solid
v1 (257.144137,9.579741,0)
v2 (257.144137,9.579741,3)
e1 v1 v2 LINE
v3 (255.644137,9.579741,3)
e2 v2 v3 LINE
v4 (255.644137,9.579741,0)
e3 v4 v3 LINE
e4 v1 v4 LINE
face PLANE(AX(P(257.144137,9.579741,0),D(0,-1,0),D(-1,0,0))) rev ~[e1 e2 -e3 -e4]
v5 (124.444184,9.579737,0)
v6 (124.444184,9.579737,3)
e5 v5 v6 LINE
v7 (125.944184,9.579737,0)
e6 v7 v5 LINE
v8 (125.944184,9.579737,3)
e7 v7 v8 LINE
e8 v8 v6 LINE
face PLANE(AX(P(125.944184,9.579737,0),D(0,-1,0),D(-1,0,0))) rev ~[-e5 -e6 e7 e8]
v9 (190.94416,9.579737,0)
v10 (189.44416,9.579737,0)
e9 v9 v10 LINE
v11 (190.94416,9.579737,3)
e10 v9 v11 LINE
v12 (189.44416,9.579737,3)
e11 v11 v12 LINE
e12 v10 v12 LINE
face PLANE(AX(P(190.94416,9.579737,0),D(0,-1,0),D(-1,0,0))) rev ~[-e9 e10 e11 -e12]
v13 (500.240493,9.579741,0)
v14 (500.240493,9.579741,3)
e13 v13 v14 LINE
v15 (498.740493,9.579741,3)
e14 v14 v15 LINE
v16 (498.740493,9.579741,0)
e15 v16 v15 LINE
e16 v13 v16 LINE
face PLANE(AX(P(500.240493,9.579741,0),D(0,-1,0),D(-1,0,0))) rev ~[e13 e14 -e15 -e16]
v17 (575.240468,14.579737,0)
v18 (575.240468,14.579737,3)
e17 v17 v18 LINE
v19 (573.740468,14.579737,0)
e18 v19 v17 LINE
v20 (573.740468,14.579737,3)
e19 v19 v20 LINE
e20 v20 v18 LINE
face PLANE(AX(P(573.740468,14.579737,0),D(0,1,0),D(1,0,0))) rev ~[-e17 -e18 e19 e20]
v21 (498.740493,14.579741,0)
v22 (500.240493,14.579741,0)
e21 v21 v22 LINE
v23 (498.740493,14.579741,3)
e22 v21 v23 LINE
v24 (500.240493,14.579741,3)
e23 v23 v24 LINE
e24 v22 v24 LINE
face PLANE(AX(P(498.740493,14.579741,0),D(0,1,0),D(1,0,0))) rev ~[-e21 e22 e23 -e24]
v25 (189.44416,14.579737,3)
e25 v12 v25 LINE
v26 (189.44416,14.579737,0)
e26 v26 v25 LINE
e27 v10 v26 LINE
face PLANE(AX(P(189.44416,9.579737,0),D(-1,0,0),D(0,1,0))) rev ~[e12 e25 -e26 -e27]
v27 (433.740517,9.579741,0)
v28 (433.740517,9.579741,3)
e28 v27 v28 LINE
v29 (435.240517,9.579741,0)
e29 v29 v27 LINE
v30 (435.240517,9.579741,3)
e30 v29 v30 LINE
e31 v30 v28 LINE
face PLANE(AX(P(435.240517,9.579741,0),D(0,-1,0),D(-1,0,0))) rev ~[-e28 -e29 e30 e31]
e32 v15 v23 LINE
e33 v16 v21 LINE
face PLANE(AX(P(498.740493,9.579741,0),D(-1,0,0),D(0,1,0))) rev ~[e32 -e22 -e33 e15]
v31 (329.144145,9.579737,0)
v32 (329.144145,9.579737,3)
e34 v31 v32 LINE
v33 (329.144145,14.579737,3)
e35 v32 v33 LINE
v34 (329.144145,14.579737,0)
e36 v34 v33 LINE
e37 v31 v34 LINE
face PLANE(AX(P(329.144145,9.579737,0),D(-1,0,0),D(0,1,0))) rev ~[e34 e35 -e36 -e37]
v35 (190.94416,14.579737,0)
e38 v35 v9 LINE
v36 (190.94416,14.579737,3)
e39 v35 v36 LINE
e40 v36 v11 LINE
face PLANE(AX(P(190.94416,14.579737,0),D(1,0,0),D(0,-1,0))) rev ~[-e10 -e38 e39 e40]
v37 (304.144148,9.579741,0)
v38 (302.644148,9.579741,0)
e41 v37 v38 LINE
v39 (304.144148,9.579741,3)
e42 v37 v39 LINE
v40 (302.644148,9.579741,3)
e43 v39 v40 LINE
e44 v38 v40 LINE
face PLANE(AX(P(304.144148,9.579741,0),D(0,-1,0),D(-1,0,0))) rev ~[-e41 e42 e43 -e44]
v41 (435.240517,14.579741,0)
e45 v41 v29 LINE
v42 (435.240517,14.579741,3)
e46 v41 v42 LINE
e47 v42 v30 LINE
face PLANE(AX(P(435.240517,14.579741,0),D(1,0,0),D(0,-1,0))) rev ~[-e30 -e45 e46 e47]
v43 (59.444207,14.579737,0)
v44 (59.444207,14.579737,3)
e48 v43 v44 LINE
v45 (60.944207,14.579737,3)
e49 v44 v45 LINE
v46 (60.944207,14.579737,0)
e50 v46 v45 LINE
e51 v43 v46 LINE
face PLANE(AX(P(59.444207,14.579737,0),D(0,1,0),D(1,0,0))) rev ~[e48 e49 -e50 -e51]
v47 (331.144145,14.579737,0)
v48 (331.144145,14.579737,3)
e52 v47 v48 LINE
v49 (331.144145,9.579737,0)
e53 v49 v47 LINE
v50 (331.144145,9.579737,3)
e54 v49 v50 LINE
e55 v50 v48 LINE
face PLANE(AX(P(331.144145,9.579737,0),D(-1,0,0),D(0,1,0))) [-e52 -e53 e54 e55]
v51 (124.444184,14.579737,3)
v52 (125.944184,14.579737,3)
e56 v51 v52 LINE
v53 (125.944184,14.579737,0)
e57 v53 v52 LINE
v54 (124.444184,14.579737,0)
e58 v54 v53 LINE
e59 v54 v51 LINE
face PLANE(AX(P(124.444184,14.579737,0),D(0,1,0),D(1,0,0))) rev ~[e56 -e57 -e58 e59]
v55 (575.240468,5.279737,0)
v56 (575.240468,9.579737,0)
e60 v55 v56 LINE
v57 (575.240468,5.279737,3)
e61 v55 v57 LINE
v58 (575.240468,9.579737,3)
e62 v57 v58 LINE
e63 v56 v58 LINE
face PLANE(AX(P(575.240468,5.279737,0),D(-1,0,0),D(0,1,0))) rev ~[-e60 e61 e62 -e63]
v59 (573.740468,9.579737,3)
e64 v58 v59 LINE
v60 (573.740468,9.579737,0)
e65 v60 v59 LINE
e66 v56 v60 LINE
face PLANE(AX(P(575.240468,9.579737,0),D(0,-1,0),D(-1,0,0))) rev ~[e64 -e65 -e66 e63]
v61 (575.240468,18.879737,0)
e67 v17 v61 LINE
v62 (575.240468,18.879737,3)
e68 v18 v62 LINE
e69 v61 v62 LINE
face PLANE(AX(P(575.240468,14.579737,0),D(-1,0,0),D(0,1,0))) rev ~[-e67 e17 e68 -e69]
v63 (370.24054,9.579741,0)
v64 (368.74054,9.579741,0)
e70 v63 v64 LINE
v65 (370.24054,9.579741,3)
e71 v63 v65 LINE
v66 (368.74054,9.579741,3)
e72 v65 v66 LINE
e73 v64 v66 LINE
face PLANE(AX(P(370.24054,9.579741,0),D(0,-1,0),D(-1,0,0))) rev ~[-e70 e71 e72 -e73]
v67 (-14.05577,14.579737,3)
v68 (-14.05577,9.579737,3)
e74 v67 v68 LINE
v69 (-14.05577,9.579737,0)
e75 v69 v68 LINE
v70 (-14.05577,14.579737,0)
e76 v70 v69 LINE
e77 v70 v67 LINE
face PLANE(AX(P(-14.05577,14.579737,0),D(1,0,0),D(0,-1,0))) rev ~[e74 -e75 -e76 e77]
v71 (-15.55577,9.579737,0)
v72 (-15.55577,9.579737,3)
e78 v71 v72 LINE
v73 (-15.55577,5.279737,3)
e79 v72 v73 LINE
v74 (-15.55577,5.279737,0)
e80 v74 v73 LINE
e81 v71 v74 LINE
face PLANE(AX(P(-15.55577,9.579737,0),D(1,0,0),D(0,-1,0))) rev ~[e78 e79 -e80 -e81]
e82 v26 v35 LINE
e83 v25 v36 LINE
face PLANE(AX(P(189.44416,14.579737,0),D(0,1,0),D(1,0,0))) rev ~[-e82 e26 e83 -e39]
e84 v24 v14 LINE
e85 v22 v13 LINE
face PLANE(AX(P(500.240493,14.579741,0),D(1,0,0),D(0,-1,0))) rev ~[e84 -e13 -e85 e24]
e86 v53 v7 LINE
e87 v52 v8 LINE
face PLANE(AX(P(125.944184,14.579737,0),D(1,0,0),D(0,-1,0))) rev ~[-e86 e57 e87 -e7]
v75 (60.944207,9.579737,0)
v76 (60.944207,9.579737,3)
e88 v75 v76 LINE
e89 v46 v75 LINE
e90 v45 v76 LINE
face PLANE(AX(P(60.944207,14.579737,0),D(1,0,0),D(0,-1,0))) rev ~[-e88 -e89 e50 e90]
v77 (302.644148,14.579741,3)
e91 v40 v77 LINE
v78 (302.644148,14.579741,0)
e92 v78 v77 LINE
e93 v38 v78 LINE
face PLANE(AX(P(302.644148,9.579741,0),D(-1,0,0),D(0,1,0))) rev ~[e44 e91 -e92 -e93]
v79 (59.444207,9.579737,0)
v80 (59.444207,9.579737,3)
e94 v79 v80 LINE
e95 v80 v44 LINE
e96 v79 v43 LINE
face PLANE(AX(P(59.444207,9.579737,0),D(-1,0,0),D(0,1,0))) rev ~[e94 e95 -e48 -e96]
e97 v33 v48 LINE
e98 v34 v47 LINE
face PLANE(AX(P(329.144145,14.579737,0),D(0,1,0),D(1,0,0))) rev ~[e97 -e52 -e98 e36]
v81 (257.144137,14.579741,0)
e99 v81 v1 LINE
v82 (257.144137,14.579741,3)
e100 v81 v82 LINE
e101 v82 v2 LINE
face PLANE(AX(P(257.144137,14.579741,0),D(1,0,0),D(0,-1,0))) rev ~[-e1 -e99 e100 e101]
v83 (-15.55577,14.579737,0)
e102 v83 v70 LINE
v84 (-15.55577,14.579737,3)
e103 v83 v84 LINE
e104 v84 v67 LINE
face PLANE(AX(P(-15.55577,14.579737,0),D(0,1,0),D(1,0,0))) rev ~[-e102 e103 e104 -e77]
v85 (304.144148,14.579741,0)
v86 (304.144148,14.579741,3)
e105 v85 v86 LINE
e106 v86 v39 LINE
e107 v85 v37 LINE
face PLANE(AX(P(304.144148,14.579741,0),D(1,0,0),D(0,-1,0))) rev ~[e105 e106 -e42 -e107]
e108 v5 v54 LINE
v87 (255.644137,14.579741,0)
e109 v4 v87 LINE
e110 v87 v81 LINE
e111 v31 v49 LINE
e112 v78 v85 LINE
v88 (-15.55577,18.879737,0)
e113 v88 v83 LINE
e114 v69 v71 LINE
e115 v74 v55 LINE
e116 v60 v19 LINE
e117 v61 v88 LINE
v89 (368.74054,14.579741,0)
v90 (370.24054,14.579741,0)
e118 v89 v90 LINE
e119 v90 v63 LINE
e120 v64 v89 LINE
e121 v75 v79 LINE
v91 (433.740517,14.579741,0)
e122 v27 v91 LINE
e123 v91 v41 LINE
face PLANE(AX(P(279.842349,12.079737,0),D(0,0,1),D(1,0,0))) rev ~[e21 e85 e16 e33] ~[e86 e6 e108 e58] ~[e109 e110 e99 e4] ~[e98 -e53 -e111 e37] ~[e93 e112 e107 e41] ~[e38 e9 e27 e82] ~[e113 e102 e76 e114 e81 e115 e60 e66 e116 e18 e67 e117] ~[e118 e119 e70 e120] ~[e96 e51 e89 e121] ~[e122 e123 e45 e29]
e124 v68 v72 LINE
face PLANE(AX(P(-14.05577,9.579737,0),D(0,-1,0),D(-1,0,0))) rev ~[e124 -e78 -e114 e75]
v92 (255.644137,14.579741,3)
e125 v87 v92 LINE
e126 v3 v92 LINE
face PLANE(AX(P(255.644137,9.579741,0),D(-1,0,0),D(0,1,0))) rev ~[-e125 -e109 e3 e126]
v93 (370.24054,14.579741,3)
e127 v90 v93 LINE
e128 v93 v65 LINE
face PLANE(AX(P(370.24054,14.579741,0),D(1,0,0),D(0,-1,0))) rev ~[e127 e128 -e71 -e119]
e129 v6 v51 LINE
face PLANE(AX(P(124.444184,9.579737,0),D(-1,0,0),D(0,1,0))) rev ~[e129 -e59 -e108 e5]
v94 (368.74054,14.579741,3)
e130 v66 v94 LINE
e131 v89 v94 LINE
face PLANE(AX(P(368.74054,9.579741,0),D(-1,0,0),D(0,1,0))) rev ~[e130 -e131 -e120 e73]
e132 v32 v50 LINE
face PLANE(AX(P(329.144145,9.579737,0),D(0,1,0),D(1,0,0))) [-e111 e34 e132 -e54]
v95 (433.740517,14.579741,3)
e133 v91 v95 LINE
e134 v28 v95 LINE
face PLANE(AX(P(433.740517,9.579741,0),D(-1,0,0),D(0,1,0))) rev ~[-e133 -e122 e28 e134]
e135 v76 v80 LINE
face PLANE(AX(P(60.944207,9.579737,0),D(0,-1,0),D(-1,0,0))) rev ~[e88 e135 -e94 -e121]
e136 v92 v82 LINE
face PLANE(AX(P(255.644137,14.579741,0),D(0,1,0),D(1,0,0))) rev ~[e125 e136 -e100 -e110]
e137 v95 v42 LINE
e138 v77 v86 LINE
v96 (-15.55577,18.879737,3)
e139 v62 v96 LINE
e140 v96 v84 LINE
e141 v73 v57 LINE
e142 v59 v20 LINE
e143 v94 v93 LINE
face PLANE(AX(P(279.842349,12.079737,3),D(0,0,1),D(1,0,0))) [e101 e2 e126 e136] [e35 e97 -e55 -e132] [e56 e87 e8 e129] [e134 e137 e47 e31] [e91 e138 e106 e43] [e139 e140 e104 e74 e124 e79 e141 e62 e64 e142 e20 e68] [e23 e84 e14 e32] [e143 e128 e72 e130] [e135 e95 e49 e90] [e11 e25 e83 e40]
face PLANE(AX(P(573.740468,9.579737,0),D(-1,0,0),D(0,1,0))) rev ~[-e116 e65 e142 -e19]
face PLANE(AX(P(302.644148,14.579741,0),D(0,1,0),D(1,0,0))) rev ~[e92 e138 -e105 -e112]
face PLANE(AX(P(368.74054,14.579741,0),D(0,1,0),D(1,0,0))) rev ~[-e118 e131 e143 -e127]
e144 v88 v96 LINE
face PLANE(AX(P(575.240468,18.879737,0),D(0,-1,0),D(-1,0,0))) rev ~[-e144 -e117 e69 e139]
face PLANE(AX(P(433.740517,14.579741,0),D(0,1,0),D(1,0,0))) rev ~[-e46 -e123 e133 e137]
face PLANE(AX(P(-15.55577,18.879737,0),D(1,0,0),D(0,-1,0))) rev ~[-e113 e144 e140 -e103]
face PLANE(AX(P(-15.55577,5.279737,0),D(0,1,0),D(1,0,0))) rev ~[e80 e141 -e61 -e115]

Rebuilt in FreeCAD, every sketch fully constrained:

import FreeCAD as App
import Part
import Sketcher
from FreeCAD import Vector


def add_polygon(sketch, points):
    """Adds a closed chain of lines whose ends are joined by coincident constraints."""
    first, n = sketch.GeometryCount, len(points)
    for a, b in zip(points, points[1:] + points[:1]):
        sketch.addGeometry(Part.LineSegment(App.Vector(*a, 0), App.Vector(*b, 0)), False)
    for i in range(n):
        sketch.addConstraint(Sketcher.Constraint("Coincident", first + i, 2, first + (i + 1) % n, 1))

doc = App.newDocument("Part")
params = doc.addObject("Spreadsheet::Sheet", "Params")
for row, (alias, value) in enumerate([
    ("sketch1_width", "2 mm"),
    ("sketch1_height", "5 mm"),
    ("sketch1_width2", "1.5 mm"),
    ("sketch1_height2", "4.3 mm"),
    ("pad1_length", "3 mm"),
], start=1):
    params.set(f"A{row}", alias)
    params.set(f"B{row}", "=" + value)
    params.setAlias(f"B{row}", alias)

body = doc.addObject("PartDesign::Body", "Body")

# Sketch on XY plane
sketch1 = body.newObject("Sketcher::SketchObject", "Sketch")
sketch1.AttachmentSupport = (doc.getObject("XY_Plane"), [""])
sketch1.MapMode = "FlatFace"
add_polygon(sketch1, [(575.2, 18.9), (-15.6, 18.9), (-15.6, 14.6), (-14.1, 14.6), (-14.1, 9.6), (-15.6, 9.6), (-15.6, 5.3), (575.2, 5.3), (575.2, 9.6), (573.7, 9.6), (573.7, 14.6), (575.2, 14.6)])  # lines 0-11
add_polygon(sketch1, [(59.4, 9.6), (59.4, 14.6), (60.9, 14.6), (60.9, 9.6)])  # lines 12-15
add_polygon(sketch1, [(124.4, 9.6), (124.4, 14.6), (125.9, 14.6), (125.9, 9.6)])  # lines 16-19
add_polygon(sketch1, [(189.4, 9.6), (189.4, 14.6), (190.9, 14.6), (190.9, 9.6)])  # lines 20-23
add_polygon(sketch1, [(331.1, 9.6), (329.1, 9.6), (329.1, 14.6), (331.1, 14.6)])  # lines 24-27
add_polygon(sketch1, [(255.6, 9.6), (255.6, 14.6), (257.1, 14.6), (257.1, 9.6)])  # lines 28-31
add_polygon(sketch1, [(302.6, 9.6), (302.6, 14.6), (304.1, 14.6), (304.1, 9.6)])  # lines 32-35
add_polygon(sketch1, [(368.7, 9.6), (368.7, 14.6), (370.2, 14.6), (370.2, 9.6)])  # lines 36-39
add_polygon(sketch1, [(433.7, 9.6), (433.7, 14.6), (435.2, 14.6), (435.2, 9.6)])  # lines 40-43
add_polygon(sketch1, [(498.7, 9.6), (498.7, 14.6), (500.2, 14.6), (500.2, 9.6)])  # lines 44-47
sketch1.addConstraint(Sketcher.Constraint("Horizontal", 0))
sketch1.addConstraint(Sketcher.Constraint("Vertical", 1))
sketch1.addConstraint(Sketcher.Constraint("Horizontal", 2))
sketch1.addConstraint(Sketcher.Constraint("Vertical", 3))
sketch1.addConstraint(Sketcher.Constraint("Horizontal", 4))
sketch1.addConstraint(Sketcher.Constraint("Vertical", 5))
sketch1.addConstraint(Sketcher.Constraint("Horizontal", 6))
sketch1.addConstraint(Sketcher.Constraint("Vertical", 7))
sketch1.addConstraint(Sketcher.Constraint("Horizontal", 8))
sketch1.addConstraint(Sketcher.Constraint("Vertical", 9))
sketch1.addConstraint(Sketcher.Constraint("Horizontal", 10))
sketch1.addConstraint(Sketcher.Constraint("Vertical", 11))
sketch1.addConstraint(Sketcher.Constraint("Vertical", 12))
sketch1.addConstraint(Sketcher.Constraint("Horizontal", 13))
sketch1.addConstraint(Sketcher.Constraint("Vertical", 14))
sketch1.addConstraint(Sketcher.Constraint("Horizontal", 15))
sketch1.addConstraint(Sketcher.Constraint("Vertical", 16))
sketch1.addConstraint(Sketcher.Constraint("Horizontal", 17))
sketch1.addConstraint(Sketcher.Constraint("Vertical", 18))
sketch1.addConstraint(Sketcher.Constraint("Horizontal", 19))
sketch1.addConstraint(Sketcher.Constraint("Vertical", 20))
sketch1.addConstraint(Sketcher.Constraint("Horizontal", 21))
sketch1.addConstraint(Sketcher.Constraint("Vertical", 22))
sketch1.addConstraint(Sketcher.Constraint("Horizontal", 23))
sketch1.addConstraint(Sketcher.Constraint("Horizontal", 24))
sketch1.addConstraint(Sketcher.Constraint("Vertical", 25))
sketch1.addConstraint(Sketcher.Constraint("Horizontal", 26))
sketch1.addConstraint(Sketcher.Constraint("Vertical", 27))
sketch1.addConstraint(Sketcher.Constraint("Vertical", 28))
sketch1.addConstraint(Sketcher.Constraint("Horizontal", 29))
sketch1.addConstraint(Sketcher.Constraint("Vertical", 30))
sketch1.addConstraint(Sketcher.Constraint("Horizontal", 31))
sketch1.addConstraint(Sketcher.Constraint("Vertical", 32))
sketch1.addConstraint(Sketcher.Constraint("Horizontal", 33))
sketch1.addConstraint(Sketcher.Constraint("Vertical", 34))
sketch1.addConstraint(Sketcher.Constraint("Horizontal", 35))
sketch1.addConstraint(Sketcher.Constraint("Vertical", 36))
sketch1.addConstraint(Sketcher.Constraint("Horizontal", 37))
sketch1.addConstraint(Sketcher.Constraint("Vertical", 38))
sketch1.addConstraint(Sketcher.Constraint("Horizontal", 39))
sketch1.addConstraint(Sketcher.Constraint("Vertical", 40))
sketch1.addConstraint(Sketcher.Constraint("Horizontal", 41))
sketch1.addConstraint(Sketcher.Constraint("Vertical", 42))
sketch1.addConstraint(Sketcher.Constraint("Horizontal", 43))
sketch1.addConstraint(Sketcher.Constraint("Vertical", 44))
sketch1.addConstraint(Sketcher.Constraint("Horizontal", 45))
sketch1.addConstraint(Sketcher.Constraint("Vertical", 46))
sketch1.addConstraint(Sketcher.Constraint("Horizontal", 47))
sketch1.addConstraint(Sketcher.Constraint("Horizontal", 4, 2, 7, 2))
sketch1.addConstraint(Sketcher.Constraint("Horizontal", 2, 2, 9, 2))
sketch1.addConstraint(Sketcher.Constraint("Horizontal", 10, 2, 12, 2))
sketch1.addConstraint(Sketcher.Constraint("Horizontal", 8, 2, 14, 2))
sketch1.addConstraint(Sketcher.Constraint("Horizontal", 13, 2, 16, 2))
sketch1.addConstraint(Sketcher.Constraint("Horizontal", 15, 2, 18, 2))
sketch1.addConstraint(Sketcher.Constraint("Horizontal", 17, 2, 20, 2))
sketch1.addConstraint(Sketcher.Constraint("Horizontal", 19, 2, 22, 2))
sketch1.addConstraint(Sketcher.Constraint("Horizontal", 23, 2, 24, 2))
sketch1.addConstraint(Sketcher.Constraint("Horizontal", 21, 2, 25, 2))
sketch1.addConstraint(Sketcher.Constraint("Horizontal", 29, 2, 32, 2))
sketch1.addConstraint(Sketcher.Constraint("Horizontal", 31, 2, 34, 2))
sketch1.addConstraint(Sketcher.Constraint("Horizontal", 33, 2, 36, 2))
sketch1.addConstraint(Sketcher.Constraint("Horizontal", 35, 2, 38, 2))
sketch1.addConstraint(Sketcher.Constraint("Horizontal", 37, 2, 40, 2))
sketch1.addConstraint(Sketcher.Constraint("Horizontal", 39, 2, 42, 2))
sketch1.addConstraint(Sketcher.Constraint("Horizontal", 41, 2, 44, 2))
sketch1.addConstraint(Sketcher.Constraint("Horizontal", 43, 2, 46, 2))
sketch1.addConstraint(Sketcher.Constraint("Vertical", 1, 2, 4, 2))
sketch1.addConstraint(Sketcher.Constraint("Vertical", 7, 2, 10, 2))
sketch1.addConstraint(Sketcher.Constraint("Equal", 4, 8))
sketch1.addConstraint(Sketcher.Constraint("Equal", 10, 13))
sketch1.addConstraint(Sketcher.Constraint("Equal", 15, 17))
sketch1.addConstraint(Sketcher.Constraint("Equal", 19, 21))
sketch1.addConstraint(Sketcher.Constraint("Equal", 23, 29))
sketch1.addConstraint(Sketcher.Constraint("Equal", 31, 33))
sketch1.addConstraint(Sketcher.Constraint("Equal", 35, 37))
sketch1.addConstraint(Sketcher.Constraint("Equal", 39, 41))
sketch1.addConstraint(Sketcher.Constraint("Equal", 43, 45))
sketch1.addConstraint(Sketcher.Constraint("Equal", 1, 5))
sketch1.addConstraint(Sketcher.Constraint("Equal", 27, 28))
sketch1.addConstraint(Sketcher.Constraint("DistanceX", 24, 2, 24, 1, 2.0))
sketch1.addConstraint(Sketcher.Constraint("DistanceY", 3, 2, 3, 1, 5.0))
sketch1.addConstraint(Sketcher.Constraint("DistanceX", 2, 1, 2, 2, 1.5))
sketch1.addConstraint(Sketcher.Constraint("DistanceY", 1, 2, 1, 1, 4.3))
sketch1.addConstraint(Sketcher.Constraint("DistanceX", 0, 2, 0, 1, 590.796238))
sketch1.addConstraint(Sketcher.Constraint("DistanceX", 0, 2, -1, 1, 15.55577))
sketch1.addConstraint(Sketcher.Constraint("DistanceX", -1, 1, 20, 2, 189.44416))
sketch1.addConstraint(Sketcher.Constraint("DistanceY", -1, 1, 28, 2, 14.579741))
sketch1.addConstraint(Sketcher.Constraint("DistanceX", -1, 1, 36, 2, 368.74054))
sketch1.addConstraint(Sketcher.Constraint("DistanceX", 18, 2, 24, 2, 203.199962))
sketch1.addConstraint(Sketcher.Constraint("DistanceX", 28, 2, 25, 2, 73.500008))
sketch1.addConstraint(Sketcher.Constraint("DistanceX", 29, 2, 32, 2, 45.50001))
sketch1.addConstraint(Sketcher.Constraint("DistanceX", 26, 2, 40, 2, 102.596371))
sketch1.addConstraint(Sketcher.Constraint("DistanceY", -1, 1, 0, 2, 18.879737))
sketch1.addConstraint(Sketcher.Constraint("DistanceX", -1, 1, 12, 2, 59.444207))
sketch1.addConstraint(Sketcher.Constraint("DistanceX", -1, 1, 16, 2, 124.444184))
sketch1.addConstraint(Sketcher.Constraint("DistanceX", -1, 1, 44, 2, 498.740493))
sketch1.setExpression("Constraints[127]", "Params.sketch1_width")
sketch1.setExpression("Constraints[128]", "Params.sketch1_height")
sketch1.setExpression("Constraints[129]", "Params.sketch1_width2")
sketch1.setExpression("Constraints[130]", "Params.sketch1_height2")
pad1 = body.newObject("PartDesign::Pad", "Pad")
pad1.Profile = sketch1
pad1.setExpression("Length", "Params.pad1_length")

doc.recompute()
